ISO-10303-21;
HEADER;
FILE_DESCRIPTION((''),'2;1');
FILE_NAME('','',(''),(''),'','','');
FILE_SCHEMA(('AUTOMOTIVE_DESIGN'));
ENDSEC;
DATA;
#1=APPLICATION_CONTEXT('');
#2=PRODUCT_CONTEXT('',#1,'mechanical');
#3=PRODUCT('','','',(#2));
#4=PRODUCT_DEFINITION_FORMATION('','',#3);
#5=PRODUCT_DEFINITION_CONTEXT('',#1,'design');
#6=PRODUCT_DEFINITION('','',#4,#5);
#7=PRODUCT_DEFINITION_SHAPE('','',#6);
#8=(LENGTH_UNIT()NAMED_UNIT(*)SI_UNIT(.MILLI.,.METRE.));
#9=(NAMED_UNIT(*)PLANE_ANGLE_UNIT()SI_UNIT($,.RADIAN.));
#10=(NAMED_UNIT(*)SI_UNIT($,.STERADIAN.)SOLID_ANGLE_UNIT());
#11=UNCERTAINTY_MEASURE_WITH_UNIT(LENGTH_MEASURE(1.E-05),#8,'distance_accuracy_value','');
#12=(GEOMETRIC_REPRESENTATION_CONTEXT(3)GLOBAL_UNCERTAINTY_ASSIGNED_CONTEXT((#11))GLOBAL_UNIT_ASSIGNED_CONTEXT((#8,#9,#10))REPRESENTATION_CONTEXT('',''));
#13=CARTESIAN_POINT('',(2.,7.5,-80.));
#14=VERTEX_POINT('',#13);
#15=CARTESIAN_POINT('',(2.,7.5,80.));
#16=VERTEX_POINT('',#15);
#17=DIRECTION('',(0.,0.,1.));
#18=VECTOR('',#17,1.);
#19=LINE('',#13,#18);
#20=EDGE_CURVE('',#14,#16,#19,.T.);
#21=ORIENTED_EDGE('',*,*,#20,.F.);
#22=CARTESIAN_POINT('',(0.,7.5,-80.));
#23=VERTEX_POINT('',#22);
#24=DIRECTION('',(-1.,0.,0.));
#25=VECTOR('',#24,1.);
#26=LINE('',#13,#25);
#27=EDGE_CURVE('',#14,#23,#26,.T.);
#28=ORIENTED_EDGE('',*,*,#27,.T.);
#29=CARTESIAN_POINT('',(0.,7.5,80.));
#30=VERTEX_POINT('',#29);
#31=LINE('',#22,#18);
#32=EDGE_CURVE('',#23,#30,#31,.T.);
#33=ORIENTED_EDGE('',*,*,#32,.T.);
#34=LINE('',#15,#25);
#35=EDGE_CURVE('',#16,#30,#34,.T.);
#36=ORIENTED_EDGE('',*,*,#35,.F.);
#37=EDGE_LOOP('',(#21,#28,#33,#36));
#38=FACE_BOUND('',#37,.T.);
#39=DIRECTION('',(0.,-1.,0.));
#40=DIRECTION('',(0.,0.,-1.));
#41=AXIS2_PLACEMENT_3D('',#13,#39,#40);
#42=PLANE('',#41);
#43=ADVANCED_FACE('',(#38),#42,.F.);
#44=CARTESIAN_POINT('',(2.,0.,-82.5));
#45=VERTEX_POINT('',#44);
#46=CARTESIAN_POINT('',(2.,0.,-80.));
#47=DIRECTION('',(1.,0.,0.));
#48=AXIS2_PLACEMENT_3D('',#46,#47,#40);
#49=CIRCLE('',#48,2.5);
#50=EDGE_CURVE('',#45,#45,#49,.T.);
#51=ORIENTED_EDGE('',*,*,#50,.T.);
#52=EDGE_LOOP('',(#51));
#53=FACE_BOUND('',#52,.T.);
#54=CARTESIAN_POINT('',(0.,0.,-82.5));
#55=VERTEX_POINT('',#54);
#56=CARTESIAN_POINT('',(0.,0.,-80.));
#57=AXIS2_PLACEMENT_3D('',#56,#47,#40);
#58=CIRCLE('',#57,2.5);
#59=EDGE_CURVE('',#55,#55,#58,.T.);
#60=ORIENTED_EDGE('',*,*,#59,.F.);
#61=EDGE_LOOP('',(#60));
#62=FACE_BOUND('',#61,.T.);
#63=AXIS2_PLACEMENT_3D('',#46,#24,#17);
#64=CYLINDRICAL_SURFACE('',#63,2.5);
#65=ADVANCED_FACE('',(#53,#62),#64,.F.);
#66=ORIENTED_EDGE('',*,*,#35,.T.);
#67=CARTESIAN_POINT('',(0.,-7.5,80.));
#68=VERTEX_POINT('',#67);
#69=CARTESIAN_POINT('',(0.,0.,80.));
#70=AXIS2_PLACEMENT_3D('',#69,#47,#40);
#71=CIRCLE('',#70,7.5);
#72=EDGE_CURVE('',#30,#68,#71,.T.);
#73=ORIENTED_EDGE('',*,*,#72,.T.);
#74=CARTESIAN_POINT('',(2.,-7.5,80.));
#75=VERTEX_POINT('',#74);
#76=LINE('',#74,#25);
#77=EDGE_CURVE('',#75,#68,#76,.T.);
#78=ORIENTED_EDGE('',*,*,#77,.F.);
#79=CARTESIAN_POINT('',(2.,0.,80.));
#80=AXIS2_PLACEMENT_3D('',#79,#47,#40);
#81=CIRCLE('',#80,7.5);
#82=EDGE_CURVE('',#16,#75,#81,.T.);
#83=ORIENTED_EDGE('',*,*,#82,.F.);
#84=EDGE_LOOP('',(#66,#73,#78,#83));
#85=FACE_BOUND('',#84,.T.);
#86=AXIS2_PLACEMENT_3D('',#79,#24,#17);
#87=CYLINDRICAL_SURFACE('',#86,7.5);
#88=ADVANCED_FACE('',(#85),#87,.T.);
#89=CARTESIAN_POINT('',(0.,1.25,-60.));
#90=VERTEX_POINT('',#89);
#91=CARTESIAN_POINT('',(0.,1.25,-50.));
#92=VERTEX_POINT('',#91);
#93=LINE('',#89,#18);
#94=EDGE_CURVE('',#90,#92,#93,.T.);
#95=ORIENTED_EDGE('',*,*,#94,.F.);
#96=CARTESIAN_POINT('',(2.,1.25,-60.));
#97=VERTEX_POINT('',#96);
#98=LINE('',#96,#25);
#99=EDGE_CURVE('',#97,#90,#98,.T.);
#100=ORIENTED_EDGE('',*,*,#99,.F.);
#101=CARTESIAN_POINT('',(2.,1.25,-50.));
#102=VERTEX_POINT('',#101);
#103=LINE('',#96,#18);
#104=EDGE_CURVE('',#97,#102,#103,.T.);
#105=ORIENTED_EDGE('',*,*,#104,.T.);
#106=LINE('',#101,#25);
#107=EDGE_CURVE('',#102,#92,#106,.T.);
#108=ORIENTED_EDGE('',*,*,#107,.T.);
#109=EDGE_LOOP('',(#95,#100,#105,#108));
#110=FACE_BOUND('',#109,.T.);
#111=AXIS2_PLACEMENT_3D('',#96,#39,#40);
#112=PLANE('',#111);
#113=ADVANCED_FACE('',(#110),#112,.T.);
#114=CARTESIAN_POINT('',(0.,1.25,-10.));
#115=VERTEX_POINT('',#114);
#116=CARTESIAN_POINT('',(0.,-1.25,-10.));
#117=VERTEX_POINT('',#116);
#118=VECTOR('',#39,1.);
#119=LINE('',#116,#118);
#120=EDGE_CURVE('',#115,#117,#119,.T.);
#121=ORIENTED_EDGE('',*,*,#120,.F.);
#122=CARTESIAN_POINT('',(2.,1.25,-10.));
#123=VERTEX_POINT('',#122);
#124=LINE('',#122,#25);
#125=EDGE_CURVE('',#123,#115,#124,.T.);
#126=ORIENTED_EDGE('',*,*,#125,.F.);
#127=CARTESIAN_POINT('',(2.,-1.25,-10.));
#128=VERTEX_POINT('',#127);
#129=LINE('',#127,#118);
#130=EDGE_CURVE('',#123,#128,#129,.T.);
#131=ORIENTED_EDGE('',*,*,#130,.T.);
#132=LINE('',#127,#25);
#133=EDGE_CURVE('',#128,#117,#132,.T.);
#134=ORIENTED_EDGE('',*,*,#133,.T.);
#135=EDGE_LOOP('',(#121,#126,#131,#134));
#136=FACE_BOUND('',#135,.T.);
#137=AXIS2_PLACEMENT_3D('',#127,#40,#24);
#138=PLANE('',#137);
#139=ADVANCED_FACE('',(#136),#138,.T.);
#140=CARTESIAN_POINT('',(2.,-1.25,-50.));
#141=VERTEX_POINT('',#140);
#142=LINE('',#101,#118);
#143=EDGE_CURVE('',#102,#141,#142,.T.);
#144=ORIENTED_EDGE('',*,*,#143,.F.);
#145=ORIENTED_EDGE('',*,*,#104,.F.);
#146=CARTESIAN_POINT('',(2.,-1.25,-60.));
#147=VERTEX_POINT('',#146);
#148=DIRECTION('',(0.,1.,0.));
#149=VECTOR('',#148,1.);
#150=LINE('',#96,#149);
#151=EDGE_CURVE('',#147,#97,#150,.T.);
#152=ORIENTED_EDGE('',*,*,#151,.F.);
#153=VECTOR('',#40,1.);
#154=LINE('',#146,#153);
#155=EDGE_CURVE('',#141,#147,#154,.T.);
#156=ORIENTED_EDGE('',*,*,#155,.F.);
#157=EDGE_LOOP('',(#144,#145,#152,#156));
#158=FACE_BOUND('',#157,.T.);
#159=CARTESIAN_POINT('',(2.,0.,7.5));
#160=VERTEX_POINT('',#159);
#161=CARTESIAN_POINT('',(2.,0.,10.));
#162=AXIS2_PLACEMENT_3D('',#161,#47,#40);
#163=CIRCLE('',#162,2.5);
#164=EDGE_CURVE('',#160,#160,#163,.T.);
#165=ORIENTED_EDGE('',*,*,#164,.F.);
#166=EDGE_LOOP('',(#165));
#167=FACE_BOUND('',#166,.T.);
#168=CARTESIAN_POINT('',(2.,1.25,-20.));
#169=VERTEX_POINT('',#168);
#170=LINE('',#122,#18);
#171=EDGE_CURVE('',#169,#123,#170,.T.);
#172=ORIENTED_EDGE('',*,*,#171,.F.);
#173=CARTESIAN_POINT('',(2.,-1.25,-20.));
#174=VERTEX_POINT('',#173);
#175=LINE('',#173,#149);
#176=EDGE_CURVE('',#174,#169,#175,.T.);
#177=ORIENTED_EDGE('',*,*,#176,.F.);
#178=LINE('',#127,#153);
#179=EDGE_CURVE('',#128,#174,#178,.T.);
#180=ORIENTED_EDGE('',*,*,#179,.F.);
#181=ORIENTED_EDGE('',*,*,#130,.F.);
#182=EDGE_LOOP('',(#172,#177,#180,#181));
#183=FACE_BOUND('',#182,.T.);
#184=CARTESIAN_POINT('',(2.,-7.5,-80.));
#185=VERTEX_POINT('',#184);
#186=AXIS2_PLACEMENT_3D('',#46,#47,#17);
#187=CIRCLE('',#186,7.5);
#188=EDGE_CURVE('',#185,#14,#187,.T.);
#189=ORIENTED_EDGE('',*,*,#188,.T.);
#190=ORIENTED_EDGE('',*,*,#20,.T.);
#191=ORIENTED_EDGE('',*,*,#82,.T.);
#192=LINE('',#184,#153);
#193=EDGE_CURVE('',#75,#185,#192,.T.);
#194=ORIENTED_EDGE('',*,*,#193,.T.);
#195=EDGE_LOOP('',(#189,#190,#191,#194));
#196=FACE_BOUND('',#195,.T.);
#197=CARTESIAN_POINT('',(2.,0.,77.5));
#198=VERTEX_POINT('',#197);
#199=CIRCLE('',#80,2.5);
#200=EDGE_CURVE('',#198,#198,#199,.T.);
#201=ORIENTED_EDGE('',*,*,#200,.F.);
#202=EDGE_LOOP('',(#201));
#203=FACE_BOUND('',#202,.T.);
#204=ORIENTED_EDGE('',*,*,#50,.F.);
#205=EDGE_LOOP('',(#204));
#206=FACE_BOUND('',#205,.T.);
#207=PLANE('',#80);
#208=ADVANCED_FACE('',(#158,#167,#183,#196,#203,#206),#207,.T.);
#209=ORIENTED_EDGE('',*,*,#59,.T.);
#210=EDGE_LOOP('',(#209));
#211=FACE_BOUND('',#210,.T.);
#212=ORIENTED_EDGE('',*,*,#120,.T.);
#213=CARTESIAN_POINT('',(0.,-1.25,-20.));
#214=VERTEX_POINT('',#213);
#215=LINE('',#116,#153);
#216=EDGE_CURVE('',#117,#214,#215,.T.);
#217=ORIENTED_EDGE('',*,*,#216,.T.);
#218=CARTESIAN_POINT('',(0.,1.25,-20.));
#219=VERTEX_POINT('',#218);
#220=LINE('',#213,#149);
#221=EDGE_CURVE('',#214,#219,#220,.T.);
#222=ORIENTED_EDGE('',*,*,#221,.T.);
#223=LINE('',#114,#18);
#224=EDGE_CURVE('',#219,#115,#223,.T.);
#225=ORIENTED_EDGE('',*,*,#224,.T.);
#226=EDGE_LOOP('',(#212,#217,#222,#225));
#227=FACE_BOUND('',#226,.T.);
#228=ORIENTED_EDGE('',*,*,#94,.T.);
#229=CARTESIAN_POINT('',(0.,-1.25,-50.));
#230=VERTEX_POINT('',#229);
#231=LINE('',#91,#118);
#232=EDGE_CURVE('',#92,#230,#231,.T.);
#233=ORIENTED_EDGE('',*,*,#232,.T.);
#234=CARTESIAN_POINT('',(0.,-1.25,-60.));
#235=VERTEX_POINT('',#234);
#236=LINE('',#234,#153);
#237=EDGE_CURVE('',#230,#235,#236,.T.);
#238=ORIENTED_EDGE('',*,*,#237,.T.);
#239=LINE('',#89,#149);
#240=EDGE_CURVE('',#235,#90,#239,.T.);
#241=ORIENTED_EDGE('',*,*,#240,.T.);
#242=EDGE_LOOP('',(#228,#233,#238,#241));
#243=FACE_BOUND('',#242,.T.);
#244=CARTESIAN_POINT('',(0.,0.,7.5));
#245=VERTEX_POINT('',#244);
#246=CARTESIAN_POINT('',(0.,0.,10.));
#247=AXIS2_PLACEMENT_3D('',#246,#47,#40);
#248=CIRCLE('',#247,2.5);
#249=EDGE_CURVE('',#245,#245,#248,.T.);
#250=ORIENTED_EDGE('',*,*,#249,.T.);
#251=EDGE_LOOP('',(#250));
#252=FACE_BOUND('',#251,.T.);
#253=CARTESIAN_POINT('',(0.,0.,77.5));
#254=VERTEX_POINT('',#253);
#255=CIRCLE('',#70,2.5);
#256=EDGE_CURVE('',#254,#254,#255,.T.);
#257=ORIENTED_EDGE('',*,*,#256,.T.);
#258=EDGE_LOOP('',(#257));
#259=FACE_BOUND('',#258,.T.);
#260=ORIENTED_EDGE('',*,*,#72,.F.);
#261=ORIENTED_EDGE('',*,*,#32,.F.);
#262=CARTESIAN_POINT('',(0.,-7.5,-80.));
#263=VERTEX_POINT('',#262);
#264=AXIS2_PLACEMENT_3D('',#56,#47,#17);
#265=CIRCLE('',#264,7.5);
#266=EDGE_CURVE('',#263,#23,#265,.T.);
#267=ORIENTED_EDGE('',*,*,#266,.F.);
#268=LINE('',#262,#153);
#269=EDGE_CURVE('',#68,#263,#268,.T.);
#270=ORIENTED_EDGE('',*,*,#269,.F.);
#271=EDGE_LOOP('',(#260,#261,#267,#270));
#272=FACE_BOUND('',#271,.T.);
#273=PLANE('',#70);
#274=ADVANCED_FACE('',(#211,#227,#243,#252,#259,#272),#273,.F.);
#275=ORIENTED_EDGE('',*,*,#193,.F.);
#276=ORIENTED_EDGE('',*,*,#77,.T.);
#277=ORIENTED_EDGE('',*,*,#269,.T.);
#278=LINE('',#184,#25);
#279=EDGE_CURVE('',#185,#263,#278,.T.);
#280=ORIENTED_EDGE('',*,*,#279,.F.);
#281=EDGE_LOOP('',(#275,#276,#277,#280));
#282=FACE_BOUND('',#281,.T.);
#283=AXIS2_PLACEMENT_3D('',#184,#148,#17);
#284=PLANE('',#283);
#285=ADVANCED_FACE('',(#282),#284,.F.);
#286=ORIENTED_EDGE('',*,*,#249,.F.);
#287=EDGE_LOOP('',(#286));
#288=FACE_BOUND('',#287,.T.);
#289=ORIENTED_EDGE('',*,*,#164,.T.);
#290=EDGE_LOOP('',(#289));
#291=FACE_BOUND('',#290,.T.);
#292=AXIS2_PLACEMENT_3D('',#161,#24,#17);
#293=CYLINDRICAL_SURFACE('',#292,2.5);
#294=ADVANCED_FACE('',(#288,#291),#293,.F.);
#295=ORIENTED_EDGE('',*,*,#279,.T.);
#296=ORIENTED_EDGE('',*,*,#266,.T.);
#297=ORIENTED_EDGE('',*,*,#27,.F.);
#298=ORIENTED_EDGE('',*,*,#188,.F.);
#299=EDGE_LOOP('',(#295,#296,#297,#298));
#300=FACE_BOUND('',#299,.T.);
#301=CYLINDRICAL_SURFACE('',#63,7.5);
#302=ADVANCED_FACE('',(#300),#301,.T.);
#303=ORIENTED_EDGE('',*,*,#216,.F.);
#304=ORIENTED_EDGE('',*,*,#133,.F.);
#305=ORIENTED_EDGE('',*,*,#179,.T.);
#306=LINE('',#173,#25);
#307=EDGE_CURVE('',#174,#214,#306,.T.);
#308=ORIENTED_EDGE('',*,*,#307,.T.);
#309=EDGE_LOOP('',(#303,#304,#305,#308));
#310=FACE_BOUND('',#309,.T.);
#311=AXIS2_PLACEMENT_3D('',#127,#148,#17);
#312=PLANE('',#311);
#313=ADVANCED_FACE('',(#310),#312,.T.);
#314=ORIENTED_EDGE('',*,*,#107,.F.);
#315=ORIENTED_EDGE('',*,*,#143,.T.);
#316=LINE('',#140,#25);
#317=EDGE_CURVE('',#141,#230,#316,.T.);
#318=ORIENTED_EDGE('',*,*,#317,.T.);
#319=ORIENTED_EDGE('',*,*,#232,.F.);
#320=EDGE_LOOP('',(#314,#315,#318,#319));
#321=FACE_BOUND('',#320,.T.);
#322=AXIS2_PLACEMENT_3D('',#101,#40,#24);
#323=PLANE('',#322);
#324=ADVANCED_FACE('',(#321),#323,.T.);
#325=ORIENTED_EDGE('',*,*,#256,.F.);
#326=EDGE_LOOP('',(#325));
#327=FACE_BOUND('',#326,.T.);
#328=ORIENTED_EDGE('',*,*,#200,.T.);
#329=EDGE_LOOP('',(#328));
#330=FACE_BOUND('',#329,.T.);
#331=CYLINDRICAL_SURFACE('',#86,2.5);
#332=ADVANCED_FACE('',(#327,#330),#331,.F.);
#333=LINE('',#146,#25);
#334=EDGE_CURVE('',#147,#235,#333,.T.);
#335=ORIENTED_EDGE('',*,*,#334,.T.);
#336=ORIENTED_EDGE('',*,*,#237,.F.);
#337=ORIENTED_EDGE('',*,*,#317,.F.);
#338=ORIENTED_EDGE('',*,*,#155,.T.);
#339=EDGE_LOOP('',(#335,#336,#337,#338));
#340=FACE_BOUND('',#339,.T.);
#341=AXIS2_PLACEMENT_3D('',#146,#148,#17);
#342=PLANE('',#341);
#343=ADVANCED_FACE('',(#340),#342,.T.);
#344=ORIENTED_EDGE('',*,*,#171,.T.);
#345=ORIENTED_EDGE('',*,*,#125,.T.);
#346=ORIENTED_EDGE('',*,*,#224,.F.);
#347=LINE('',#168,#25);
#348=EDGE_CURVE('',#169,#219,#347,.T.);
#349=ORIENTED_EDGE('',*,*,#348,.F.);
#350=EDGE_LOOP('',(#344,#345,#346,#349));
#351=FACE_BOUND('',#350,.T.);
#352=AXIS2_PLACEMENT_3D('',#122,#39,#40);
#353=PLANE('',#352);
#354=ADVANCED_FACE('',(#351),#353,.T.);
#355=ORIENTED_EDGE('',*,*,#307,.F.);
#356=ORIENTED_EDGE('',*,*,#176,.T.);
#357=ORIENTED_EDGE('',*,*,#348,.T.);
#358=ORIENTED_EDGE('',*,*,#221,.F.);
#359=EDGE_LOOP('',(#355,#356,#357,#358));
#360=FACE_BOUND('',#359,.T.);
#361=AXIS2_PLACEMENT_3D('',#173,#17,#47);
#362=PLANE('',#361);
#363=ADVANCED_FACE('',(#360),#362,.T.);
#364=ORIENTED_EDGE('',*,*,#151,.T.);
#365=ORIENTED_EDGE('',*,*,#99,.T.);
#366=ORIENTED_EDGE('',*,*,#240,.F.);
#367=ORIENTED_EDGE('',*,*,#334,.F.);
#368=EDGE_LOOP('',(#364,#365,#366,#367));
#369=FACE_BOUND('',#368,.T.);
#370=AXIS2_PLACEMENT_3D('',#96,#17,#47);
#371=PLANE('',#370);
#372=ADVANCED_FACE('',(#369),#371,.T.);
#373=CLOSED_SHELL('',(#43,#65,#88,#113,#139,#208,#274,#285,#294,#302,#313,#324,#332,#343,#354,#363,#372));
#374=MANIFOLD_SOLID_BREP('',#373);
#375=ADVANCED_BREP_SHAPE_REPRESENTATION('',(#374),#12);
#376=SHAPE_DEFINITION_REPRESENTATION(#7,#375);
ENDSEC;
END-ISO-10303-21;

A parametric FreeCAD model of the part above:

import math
import FreeCAD as App
import Part
import Sketcher
from FreeCAD import Vector


def add_polygon(sketch, points):
    """Adds a closed chain of lines whose ends are joined by coincident constraints."""
    first, n = sketch.GeometryCount, len(points)
    for a, b in zip(points, points[1:] + points[:1]):
        sketch.addGeometry(Part.LineSegment(App.Vector(*a, 0), App.Vector(*b, 0)), False)
    for i in range(n):
        sketch.addConstraint(Sketcher.Constraint("Coincident", first + i, 2, first + (i + 1) % n, 1))

doc = App.newDocument("Part")
body = doc.addObject("PartDesign::Body", "Body")

# Sketch on YZ plane
sketch1 = doc.addObject("Sketcher::SketchObject", "Sketch")
body.addObject(sketch1)
sketch1.AttachmentSupport = (doc.YZ_Plane, [""])
sketch1.MapMode = "FlatFace"
sketch1.addGeometry(Part.LineSegment(Vector(-7.5, 80, 0), Vector(-7.5, -80, 0)), False)  # 0
sketch1.addGeometry(Part.ArcOfCircle(Part.Circle(Vector(0, -80, 0), Vector(0, 0, 1), 7.5), math.radians(180), math.radians(360)), False)  # 1
sketch1.addGeometry(Part.LineSegment(Vector(7.5, -80, 0), Vector(7.5, 80, 0)), False)  # 2
sketch1.addGeometry(Part.ArcOfCircle(Part.Circle(Vector(0, 80, 0), Vector(0, 0, 1), 7.5), math.radians(0), math.radians(180)), False)  # 3
sketch1.addGeometry(Part.Circle(Vector(0, -80, 0), Vector(0, 0, 1), 2.5), False)  # 4
add_polygon(sketch1, [(-1.25, -50), (1.25, -50), (1.25, -60), (-1.25, -60)])  # lines 5-8
add_polygon(sketch1, [(-1.25, -10), (1.25, -10), (1.25, -20), (-1.25, -20)])  # lines 9-12
sketch1.addGeometry(Part.Circle(Vector(0, 10, 0), Vector(0, 0, 1), 2.5), False)  # 13
sketch1.addGeometry(Part.Circle(Vector(0, 80, 0), Vector(0, 0, 1), 2.5), False)  # 14
sketch1.addConstraint(Sketcher.Constraint("Tangent", 0, 2, 1, 1))
sketch1.addConstraint(Sketcher.Constraint("Tangent", 1, 2, 2, 1))
sketch1.addConstraint(Sketcher.Constraint("Tangent", 2, 2, 3, 1))
sketch1.addConstraint(Sketcher.Constraint("Tangent", 3, 2, 0, 1))
sketch1.addConstraint(Sketcher.Constraint("Vertical", 0))
sketch1.addConstraint(Sketcher.Constraint("Vertical", 2))
sketch1.addConstraint(Sketcher.Constraint("Horizontal", 5))
sketch1.addConstraint(Sketcher.Constraint("Vertical", 6))
sketch1.addConstraint(Sketcher.Constraint("Horizontal", 7))
sketch1.addConstraint(Sketcher.Constraint("Vertical", 8))
sketch1.addConstraint(Sketcher.Constraint("Horizontal", 9))
sketch1.addConstraint(Sketcher.Constraint("Vertical", 10))
sketch1.addConstraint(Sketcher.Constraint("Horizontal", 11))
sketch1.addConstraint(Sketcher.Constraint("Vertical", 12))
sketch1.addConstraint(Sketcher.Constraint("Coincident", 4, 3, 1, 3))
sketch1.addConstraint(Sketcher.Constraint("Coincident", 14, 3, 3, 3))
sketch1.addConstraint(Sketcher.Constraint("Equal", 4, 13))
sketch1.addConstraint(Sketcher.Constraint("Equal", 13, 14))
sketch1.addConstraint(Sketcher.Constraint("Symmetric", 1, 3, 3, 3, -1, 1))
sketch1.addConstraint(Sketcher.Constraint("PointOnObject", 13, 3, -2))
sketch1.addConstraint(Sketcher.Constraint("Vertical", 6, 2, 9, 2))
sketch1.addConstraint(Sketcher.Constraint("Vertical", 8, 2, 11, 2))
sketch1.addConstraint(Sketcher.Constraint("Equal", 8, 10))
sketch1.addConstraint(Sketcher.Constraint("Diameter", 4, 5.0))
sketch1.addConstraint(Sketcher.Constraint("Radius", 1, 7.5))
sketch1.addConstraint(Sketcher.Constraint("DistanceY", 0, 2, 0, 1, 160.0))
sketch1.addConstraint(Sketcher.Constraint("DistanceY", 6, 2, 6, 1, 10.0))
sketch1.addConstraint(Sketcher.Constraint("DistanceX", 5, 1, 5, 2, 2.5))
sketch1.addConstraint(Sketcher.Constraint("DistanceY", -1, 1, 13, 3, 10.0))
sketch1.addConstraint(Sketcher.Constraint("DistanceY", 5, 2, -1, 1, 50.0))
sketch1.addConstraint(Sketcher.Constraint("DistanceY", 9, 2, -1, 1, 10.0))
sketch1.addConstraint(Sketcher.Constraint("DistanceX", -1, 1, 5, 2, 1.25))
pad1 = doc.addObject("PartDesign::Pad", "Pad")
body.addObject(pad1)
pad1.Profile = sketch1
pad1.Length = 2

doc.recompute()
